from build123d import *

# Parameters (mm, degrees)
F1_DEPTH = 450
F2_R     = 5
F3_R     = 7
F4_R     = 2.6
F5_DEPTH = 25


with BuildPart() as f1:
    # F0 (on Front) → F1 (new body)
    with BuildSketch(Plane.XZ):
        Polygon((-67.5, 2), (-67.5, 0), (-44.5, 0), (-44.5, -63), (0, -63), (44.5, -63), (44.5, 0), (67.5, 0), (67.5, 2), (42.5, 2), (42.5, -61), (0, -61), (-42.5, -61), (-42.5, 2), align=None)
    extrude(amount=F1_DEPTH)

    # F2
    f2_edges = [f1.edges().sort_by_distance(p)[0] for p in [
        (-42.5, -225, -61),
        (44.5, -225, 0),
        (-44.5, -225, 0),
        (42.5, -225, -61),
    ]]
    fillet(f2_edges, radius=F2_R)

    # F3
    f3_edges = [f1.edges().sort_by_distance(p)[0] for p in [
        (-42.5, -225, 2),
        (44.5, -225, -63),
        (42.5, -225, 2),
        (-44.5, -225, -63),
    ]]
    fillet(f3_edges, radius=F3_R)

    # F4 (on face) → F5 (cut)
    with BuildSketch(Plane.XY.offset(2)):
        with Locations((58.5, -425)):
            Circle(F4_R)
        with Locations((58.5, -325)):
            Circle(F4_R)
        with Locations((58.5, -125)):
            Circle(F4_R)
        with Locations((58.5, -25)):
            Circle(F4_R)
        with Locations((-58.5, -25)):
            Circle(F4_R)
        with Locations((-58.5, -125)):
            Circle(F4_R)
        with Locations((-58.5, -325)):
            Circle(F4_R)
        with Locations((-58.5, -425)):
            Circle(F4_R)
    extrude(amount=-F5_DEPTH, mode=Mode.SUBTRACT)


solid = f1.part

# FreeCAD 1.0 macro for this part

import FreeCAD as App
import Part
import Sketcher
Q = App.Units.Quantity


def edges_at(feature, points):
    """Names of the edges that pass closest to the given points."""
    edges = feature.Shape.Edges
    near = lambda p: min(range(len(edges)), key=lambda i: edges[i].distToShape(Part.Vertex(*p))[0])
    return sorted({f"Edge{near(p) + 1}" for p in points})


def add_polygon(sketch, points):
    """Adds a closed chain of lines whose ends are joined by coincident constraints."""
    first, n = sketch.GeometryCount, len(points)
    for a, b in zip(points, points[1:] + points[:1]):
        sketch.addGeometry(Part.LineSegment(App.Vector(*a, 0), App.Vector(*b, 0)), False)
    for i in range(n):
        sketch.addConstraint(Sketcher.Constraint("Coincident", first + i, 2, first + (i + 1) % n, 1))

doc = App.newDocument("Part")
body = doc.addObject("PartDesign::Body", "Body")

# Sketch on XZ plane
sketch1 = body.newObject("Sketcher::SketchObject", "Sketch")
sketch1.AttachmentSupport = (doc.getObject("XZ_Plane"), [""])
sketch1.MapMode = "FlatFace"
add_polygon(sketch1, [(-67.5, 2), (-67.5, 0), (-44.5, 0), (-44.5, -63), (44.5, -63), (44.5, 0), (67.5, 0), (67.5, 2), (42.5, 2), (42.5, -61), (-42.5, -61), (-42.5, 2)])  # lines 0-11
sketch1.addConstraint([
    Sketcher.Constraint("Vertical", 0),
    Sketcher.Constraint("Horizontal", 1),
    Sketcher.Constraint("Vertical", 2),
    Sketcher.Constraint("Horizontal", 3),
    Sketcher.Constraint("Vertical", 4),
    Sketcher.Constraint("Horizontal", 5),
    Sketcher.Constraint("Vertical", 6),
    Sketcher.Constraint("Horizontal", 7),
    Sketcher.Constraint("Vertical", 8),
    Sketcher.Constraint("Horizontal", 9),
    Sketcher.Constraint("Vertical", 10),
    Sketcher.Constraint("Horizontal", 11),
    Sketcher.Constraint("Symmetric", 1, 2, 4, 2, -1, 1),
    Sketcher.Constraint("Symmetric", 0, 2, 5, 2, -2),
    Sketcher.Constraint("Symmetric", 7, 2, 10, 2, -2),
    Sketcher.Constraint("Equal", 4, 8),
    Sketcher.Constraint("DistanceX", 1, 1, 1, 2, Q("23 mm")),
    Sketcher.Constraint("DistanceX", 3, 1, 3, 2, Q("89 mm")),
    Sketcher.Constraint("DistanceX", 7, 2, 7, 1, Q("25 mm")),
    Sketcher.Constraint("DistanceY", 0, 2, 0, 1, Q("2 mm")),
    Sketcher.Constraint("DistanceY", 2, 2, 2, 1, Q("63 mm")),
])
pad1 = body.newObject("PartDesign::Pad", "Pad")
pad1.Profile = sketch1
pad1.Length = 450
doc.recompute()

fillet = body.newObject("PartDesign::Fillet", "Fillet")
fillet.Base = (pad1, edges_at(pad1, [
    (-42.5, -225, -61),
    (44.5, -225, 0),
    (-44.5, -225, 0),
    (42.5, -225, -61),
]))
fillet.Radius = 5
doc.recompute()

fillet2 = body.newObject("PartDesign::Fillet", "Fillet001")
fillet2.Base = (fillet, edges_at(fillet, [
    (-42.5, -225, 2),
    (44.5, -225, -63),
    (42.5, -225, 2),
    (-44.5, -225, -63),
]))
fillet2.Radius = 7

# Sketch on XY plane
sketch2 = body.newObject("Sketcher::SketchObject", "Sketch001")
sketch2.AttachmentSupport = (doc.getObject("XY_Plane"), [""])
sketch2.MapMode = "FlatFace"
sketch2.AttachmentOffset = App.Placement(App.Vector(0, 0, 2), App.Rotation())
sketch2.addGeometry([
    Part.Circle(App.Vector(58.5, -425, 0), App.Vector(0, 0, 1), 2.6),  # 0
    Part.Circle(App.Vector(58.5, -325, 0), App.Vector(0, 0, 1), 2.6),  # 1
    Part.Circle(App.Vector(58.5, -125, 0), App.Vector(0, 0, 1), 2.6),  # 2
    Part.Circle(App.Vector(58.5, -25, 0), App.Vector(0, 0, 1), 2.6),  # 3
    Part.Circle(App.Vector(-58.5, -25, 0), App.Vector(0, 0, 1), 2.6),  # 4
    Part.Circle(App.Vector(-58.5, -125, 0), App.Vector(0, 0, 1), 2.6),  # 5
    Part.Circle(App.Vector(-58.5, -325, 0), App.Vector(0, 0, 1), 2.6),  # 6
    Part.Circle(App.Vector(-58.5, -425, 0), App.Vector(0, 0, 1), 2.6),  # 7
], False)
sketch2.addConstraint([
    Sketcher.Constraint("Equal", 0, 1),
    Sketcher.Constraint("Equal", 1, 2),
    Sketcher.Constraint("Equal", 2, 3),
    Sketcher.Constraint("Equal", 3, 4),
    Sketcher.Constraint("Equal", 4, 5),
    Sketcher.Constraint("Equal", 5, 6),
    Sketcher.Constraint("Equal", 6, 7),
    Sketcher.Constraint("Symmetric", 3, 3, 4, 3, -2),
    Sketcher.Constraint("Symmetric", 2, 3, 5, 3, -2),
    Sketcher.Constraint("Symmetric", 1, 3, 6, 3, -2),
    Sketcher.Constraint("Symmetric", 0, 3, 7, 3, -2),
    Sketcher.Constraint("Vertical", 0, 3, 1, 3),
    Sketcher.Constraint("Vertical", 1, 3, 2, 3),
    Sketcher.Constraint("Vertical", 2, 3, 3, 3),
    Sketcher.Constraint("Diameter", 0, Q("5.2 mm")),
    Sketcher.Constraint("DistanceY", 0, 3, -1, 1, Q("425 mm")),
    Sketcher.Constraint("DistanceY", 1, 3, -1, 1, Q("325 mm")),
    Sketcher.Constraint("DistanceY", 2, 3, -1, 1, Q("125 mm")),
    Sketcher.Constraint("DistanceY", 3, 3, -1, 1, Q("25 mm")),
    Sketcher.Constraint("DistanceX", 4, 3, 3, 3, Q("117 mm")),
])
pocket1 = body.newObject("PartDesign::Pocket", "Pocket")
pocket1.Profile = sketch2
pocket1.Length = 25

doc.recompute()
